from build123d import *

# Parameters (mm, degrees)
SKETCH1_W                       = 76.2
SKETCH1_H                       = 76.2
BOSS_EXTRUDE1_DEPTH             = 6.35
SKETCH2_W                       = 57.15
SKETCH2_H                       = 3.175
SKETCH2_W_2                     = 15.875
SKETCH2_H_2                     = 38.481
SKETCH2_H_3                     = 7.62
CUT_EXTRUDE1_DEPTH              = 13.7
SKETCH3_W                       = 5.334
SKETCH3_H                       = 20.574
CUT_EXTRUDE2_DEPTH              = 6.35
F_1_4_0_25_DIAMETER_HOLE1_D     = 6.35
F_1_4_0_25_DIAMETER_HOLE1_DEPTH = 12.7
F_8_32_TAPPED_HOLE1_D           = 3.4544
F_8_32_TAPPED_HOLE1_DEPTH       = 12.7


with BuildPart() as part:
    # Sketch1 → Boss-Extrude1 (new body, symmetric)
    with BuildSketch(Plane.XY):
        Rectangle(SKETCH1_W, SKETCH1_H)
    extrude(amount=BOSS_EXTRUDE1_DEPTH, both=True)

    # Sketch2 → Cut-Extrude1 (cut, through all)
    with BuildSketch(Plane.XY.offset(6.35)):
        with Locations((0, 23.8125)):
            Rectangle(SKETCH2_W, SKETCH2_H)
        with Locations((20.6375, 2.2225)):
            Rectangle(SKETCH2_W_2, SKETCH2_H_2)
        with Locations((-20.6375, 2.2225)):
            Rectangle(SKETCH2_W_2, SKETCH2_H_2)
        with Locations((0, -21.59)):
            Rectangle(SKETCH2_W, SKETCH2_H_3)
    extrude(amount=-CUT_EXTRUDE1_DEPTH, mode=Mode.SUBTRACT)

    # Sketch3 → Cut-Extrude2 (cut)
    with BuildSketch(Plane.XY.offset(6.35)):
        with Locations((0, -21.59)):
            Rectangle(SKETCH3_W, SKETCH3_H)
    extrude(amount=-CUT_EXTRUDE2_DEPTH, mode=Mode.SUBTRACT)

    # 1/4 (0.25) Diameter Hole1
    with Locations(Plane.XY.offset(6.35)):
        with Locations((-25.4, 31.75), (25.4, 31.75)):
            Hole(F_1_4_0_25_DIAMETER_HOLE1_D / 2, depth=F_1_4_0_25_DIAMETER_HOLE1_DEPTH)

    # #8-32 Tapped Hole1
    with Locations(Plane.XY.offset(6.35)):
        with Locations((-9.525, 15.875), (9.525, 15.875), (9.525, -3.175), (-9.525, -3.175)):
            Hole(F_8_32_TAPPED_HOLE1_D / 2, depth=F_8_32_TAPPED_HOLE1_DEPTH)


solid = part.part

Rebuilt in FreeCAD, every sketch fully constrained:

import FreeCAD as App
import Part
import Sketcher

V = App.Vector
Q = App.Units.Quantity

doc = App.newDocument("Part")
body = doc.addObject("PartDesign::Body", "Body")

# Sketch on XY plane
sketch1 = doc.addObject("Sketcher::SketchObject", "Sketch")
body.addObject(sketch1)
sketch1.AttachmentSupport = (doc.XY_Plane, [""])
sketch1.MapMode = "FlatFace"
sketch1.addGeometry(Part.LineSegment(V(-38.1, 38.1, 0), V(-38.1, -38.1, 0)), False)
sketch1.addGeometry(Part.LineSegment(V(-38.1, -38.1, 0), V(38.1, -38.1, 0)), False)
sketch1.addGeometry(Part.LineSegment(V(38.1, -38.1, 0), V(38.1, 38.1, 0)), False)
sketch1.addGeometry(Part.LineSegment(V(38.1, 38.1, 0), V(-38.1, 38.1, 0)), False)
sketch1.addConstraint(Sketcher.Constraint("Coincident", 0, 2, 1, 1))
sketch1.addConstraint(Sketcher.Constraint("Coincident", 1, 2, 2, 1))
sketch1.addConstraint(Sketcher.Constraint("Coincident", 2, 2, 3, 1))
sketch1.addConstraint(Sketcher.Constraint("Coincident", 3, 2, 0, 1))
sketch1.addConstraint(Sketcher.Constraint("Vertical", 0))
sketch1.addConstraint(Sketcher.Constraint("Horizontal", 1))
sketch1.addConstraint(Sketcher.Constraint("Vertical", 2))
sketch1.addConstraint(Sketcher.Constraint("Horizontal", 3))
sketch1.addConstraint(Sketcher.Constraint("Symmetric", 0, 2, 2, 2, -1, 1))
sketch1.addConstraint(Sketcher.Constraint("Equal", 3, 0))
sketch1.addConstraint(Sketcher.Constraint("DistanceX", 1, 1, 1, 2, Q("3 in")))
pad1 = doc.addObject("PartDesign::Pad", "Pad")
body.addObject(pad1)
pad1.Profile = sketch1
pad1.Length = Q("0.5 in")
pad1.Midplane = True

# Sketch on XY plane
sketch2 = doc.addObject("Sketcher::SketchObject", "Sketch001")
body.addObject(sketch2)
sketch2.AttachmentSupport = (doc.XY_Plane, [""])
sketch2.MapMode = "FlatFace"
sketch2.AttachmentOffset = App.Placement(V(0, 0, 0.25 * 25.4), App.Rotation())
sketch2.addGeometry(Part.LineSegment(V(-28.575, 25.4, 0), V(-28.575, 22.225, 0)), False)
sketch2.addGeometry(Part.LineSegment(V(-28.575, 22.225, 0), V(28.575, 22.225, 0)), False)
sketch2.addGeometry(Part.LineSegment(V(28.575, 22.225, 0), V(28.575, 25.4, 0)), False)
sketch2.addGeometry(Part.LineSegment(V(28.575, 25.4, 0), V(-28.575, 25.4, 0)), False)
sketch2.addGeometry(Part.LineSegment(V(12.7, 21.463, 0), V(12.7, -17.018, 0)), False)
sketch2.addGeometry(Part.LineSegment(V(12.7, -17.018, 0), V(28.575, -17.018, 0)), False)
sketch2.addGeometry(Part.LineSegment(V(28.575, -17.018, 0), V(28.575, 21.463, 0)), False)
sketch2.addGeometry(Part.LineSegment(V(28.575, 21.463, 0), V(12.7, 21.463, 0)), False)
sketch2.addGeometry(Part.LineSegment(V(-28.575, 21.463, 0), V(-28.575, -17.018, 0)), False)
sketch2.addGeometry(Part.LineSegment(V(-28.575, -17.018, 0), V(-12.7, -17.018, 0)), False)
sketch2.addGeometry(Part.LineSegment(V(-12.7, -17.018, 0), V(-12.7, 21.463, 0)), False)
sketch2.addGeometry(Part.LineSegment(V(-12.7, 21.463, 0), V(-28.575, 21.463, 0)), False)
sketch2.addGeometry(Part.LineSegment(V(-28.575, -17.78, 0), V(-28.575, -25.4, 0)), False)
sketch2.addGeometry(Part.LineSegment(V(-28.575, -25.4, 0), V(28.575, -25.4, 0)), False)
sketch2.addGeometry(Part.LineSegment(V(28.575, -25.4, 0), V(28.575, -17.78, 0)), False)
sketch2.addGeometry(Part.LineSegment(V(28.575, -17.78, 0), V(-28.575, -17.78, 0)), False)
sketch2.addConstraint(Sketcher.Constraint("Coincident", 0, 2, 1, 1))
sketch2.addConstraint(Sketcher.Constraint("Coincident", 1, 2, 2, 1))
sketch2.addConstraint(Sketcher.Constraint("Coincident", 2, 2, 3, 1))
sketch2.addConstraint(Sketcher.Constraint("Coincident", 3, 2, 0, 1))
sketch2.addConstraint(Sketcher.Constraint("Coincident", 4, 2, 5, 1))
sketch2.addConstraint(Sketcher.Constraint("Coincident", 5, 2, 6, 1))
sketch2.addConstraint(Sketcher.Constraint("Coincident", 6, 2, 7, 1))
sketch2.addConstraint(Sketcher.Constraint("Coincident", 7, 2, 4, 1))
sketch2.addConstraint(Sketcher.Constraint("Coincident", 8, 2, 9, 1))
sketch2.addConstraint(Sketcher.Constraint("Coincident", 9, 2, 10, 1))
sketch2.addConstraint(Sketcher.Constraint("Coincident", 10, 2, 11, 1))
sketch2.addConstraint(Sketcher.Constraint("Coincident", 11, 2, 8, 1))
sketch2.addConstraint(Sketcher.Constraint("Coincident", 12, 2, 13, 1))
sketch2.addConstraint(Sketcher.Constraint("Coincident", 13, 2, 14, 1))
sketch2.addConstraint(Sketcher.Constraint("Coincident", 14, 2, 15, 1))
sketch2.addConstraint(Sketcher.Constraint("Coincident", 15, 2, 12, 1))
sketch2.addConstraint(Sketcher.Constraint("Vertical", 0))
sketch2.addConstraint(Sketcher.Constraint("Horizontal", 1))
sketch2.addConstraint(Sketcher.Constraint("Vertical", 2))
sketch2.addConstraint(Sketcher.Constraint("Horizontal", 3))
sketch2.addConstraint(Sketcher.Constraint("Vertical", 4))
sketch2.addConstraint(Sketcher.Constraint("Horizontal", 5))
sketch2.addConstraint(Sketcher.Constraint("Vertical", 6))
sketch2.addConstraint(Sketcher.Constraint("Horizontal", 7))
sketch2.addConstraint(Sketcher.Constraint("Vertical", 8))
sketch2.addConstraint(Sketcher.Constraint("Horizontal", 9))
sketch2.addConstraint(Sketcher.Constraint("Vertical", 10))
sketch2.addConstraint(Sketcher.Constraint("Horizontal", 11))
sketch2.addConstraint(Sketcher.Constraint("Vertical", 12))
sketch2.addConstraint(Sketcher.Constraint("Horizontal", 13))
sketch2.addConstraint(Sketcher.Constraint("Vertical", 14))
sketch2.addConstraint(Sketcher.Constraint("Horizontal", 15))
sketch2.addConstraint(Sketcher.Constraint("Symmetric", 2, 2, 12, 2, -1, 1))
sketch2.addConstraint(Sketcher.Constraint("Symmetric", 5, 2, 8, 2, -2))
sketch2.addConstraint(Sketcher.Constraint("Symmetric", 7, 2, 10, 2, -2))
sketch2.addConstraint(Sketcher.Constraint("Vertical", 2, 2, 5, 2))
sketch2.addConstraint(Sketcher.Constraint("Vertical", 3, 2, 8, 2))
sketch2.addConstraint(Sketcher.Constraint("Vertical", 6, 2, 13, 2))
sketch2.addConstraint(Sketcher.Constraint("DistanceY", 12, 2, 12, 1, Q("0.3 in")))
sketch2.addConstraint(Sketcher.Constraint("DistanceY", -1, 1, 2, 2, Q("1 in")))
sketch2.addConstraint(Sketcher.Constraint("DistanceX", 9, 2, 4, 2, Q("1 in")))
sketch2.addConstraint(Sketcher.Constraint("DistanceX", 1, 1, 1, 2, Q("2.25 in")))
sketch2.addConstraint(Sketcher.Constraint("DistanceY", 0, 2, 0, 1, Q("0.125 in")))
sketch2.addConstraint(Sketcher.Constraint("DistanceY", 4, 2, 4, 1, Q("1.515 in")))
sketch2.addConstraint(Sketcher.Constraint("DistanceY", 4, 2, -1, 1, Q("0.67 in")))
pocket1 = doc.addObject("PartDesign::Pocket", "Pocket")
body.addObject(pocket1)
pocket1.Profile = sketch2
pocket1.Type = "ThroughAll"

# Sketch on XY plane
sketch3 = doc.addObject("Sketcher::SketchObject", "Sketch002")
body.addObject(sketch3)
sketch3.AttachmentSupport = (doc.XY_Plane, [""])
sketch3.MapMode = "FlatFace"
sketch3.AttachmentOffset = App.Placement(V(0, 0, 0.25 * 25.4), App.Rotation())
sketch3.addGeometry(Part.LineSegment(V(-2.667, -11.303, 0), V(-2.667, -31.877, 0)), False)
sketch3.addGeometry(Part.LineSegment(V(-2.667, -31.877, 0), V(2.667, -31.877, 0)), False)
sketch3.addGeometry(Part.LineSegment(V(2.667, -31.877, 0), V(2.667, -11.303, 0)), False)
sketch3.addGeometry(Part.LineSegment(V(2.667, -11.303, 0), V(-2.667, -11.303, 0)), False)
sketch3.addConstraint(Sketcher.Constraint("Coincident", 0, 2, 1, 1))
sketch3.addConstraint(Sketcher.Constraint("Coincident", 1, 2, 2, 1))
sketch3.addConstraint(Sketcher.Constraint("Coincident", 2, 2, 3, 1))
sketch3.addConstraint(Sketcher.Constraint("Coincident", 3, 2, 0, 1))
sketch3.addConstraint(Sketcher.Constraint("Vertical", 0))
sketch3.addConstraint(Sketcher.Constraint("Horizontal", 1))
sketch3.addConstraint(Sketcher.Constraint("Vertical", 2))
sketch3.addConstraint(Sketcher.Constraint("Horizontal", 3))
sketch3.addConstraint(Sketcher.Constraint("DistanceX", 1, 1, 1, 2, Q("0.21 in")))
sketch3.addConstraint(Sketcher.Constraint("DistanceY", 0, 2, 0, 1, Q("0.81 in")))
sketch3.addConstraint(Sketcher.Constraint("DistanceX", 0, 2, -1, 1, Q("0.105 in")))
sketch3.addConstraint(Sketcher.Constraint("DistanceY", 0, 2, -1, 1, Q("1.255 in")))
pocket2 = doc.addObject("PartDesign::Pocket", "Pocket001")
body.addObject(pocket2)
pocket2.Profile = sketch3
pocket2.Length = Q("0.25 in")

# Sketch on XY plane
sketch4 = doc.addObject("Sketcher::SketchObject", "Sketch003")
body.addObject(sketch4)
sketch4.AttachmentSupport = (doc.XY_Plane, [""])
sketch4.MapMode = "FlatFace"
sketch4.AttachmentOffset = App.Placement(V(0, 0, 0.25 * 25.4), App.Rotation())
sketch4.addGeometry(Part.Circle(V(-25.4, 31.75, 0), V(0, 0, 1), 3.175), False)
sketch4.addGeometry(Part.Circle(V(25.4, 31.75, 0), V(0, 0, 1), 3.175), False)
sketch4.addConstraint(Sketcher.Constraint("Equal", 0, 1))
sketch4.addConstraint(Sketcher.Constraint("Symmetric", 0, 3, 1, 3, -2))
sketch4.addConstraint(Sketcher.Constraint("Diameter", 0, Q("0.25 in")))
sketch4.addConstraint(Sketcher.Constraint("DistanceX", 0, 3, -1, 1, Q("1 in")))
sketch4.addConstraint(Sketcher.Constraint("DistanceY", -1, 1, 0, 3, Q("1.25 in")))
doc.recompute()
hole = doc.addObject("PartDesign::Hole", "Hole")
body.addObject(hole)
hole.Profile = sketch4
hole.ThreadType = "None"
hole.Diameter = Q("0.25 in")
hole.DepthType = "Dimension"
hole.Depth = Q("0.5 in")
hole.DrillPoint = "Flat"

# Sketch on XY plane
sketch5 = doc.addObject("Sketcher::SketchObject", "Sketch004")
body.addObject(sketch5)
sketch5.AttachmentSupport = (doc.XY_Plane, [""])
sketch5.MapMode = "FlatFace"
sketch5.AttachmentOffset = App.Placement(V(0, 0, 0.25 * 25.4), App.Rotation())
sketch5.addGeometry(Part.Circle(V(-9.525, 15.875, 0), V(0, 0, 1), 1.7272), False)
sketch5.addGeometry(Part.Circle(V(9.525, 15.875, 0), V(0, 0, 1), 1.7272), False)
sketch5.addGeometry(Part.Circle(V(9.525, -3.175, 0), V(0, 0, 1), 1.7272), False)
sketch5.addGeometry(Part.Circle(V(-9.525, -3.175, 0), V(0, 0, 1), 1.7272), False)
sketch5.addConstraint(Sketcher.Constraint("Equal", 0, 1))
sketch5.addConstraint(Sketcher.Constraint("Equal", 1, 2))
sketch5.addConstraint(Sketcher.Constraint("Equal", 2, 3))
sketch5.addConstraint(Sketcher.Constraint("Symmetric", 0, 3, 1, 3, -2))
sketch5.addConstraint(Sketcher.Constraint("Symmetric", 2, 3, 3, 3, -2))
sketch5.addConstraint(Sketcher.Constraint("Vertical", 1, 3, 2, 3))
sketch5.addConstraint(Sketcher.Constraint("Diameter", 0, Q("0.136 in")))
sketch5.addConstraint(Sketcher.Constraint("DistanceX", 0, 3, 1, 3, Q("0.75 in")))
sketch5.addConstraint(Sketcher.Constraint("DistanceY", 2, 3, 1, 3, Q("0.75 in")))
sketch5.addConstraint(Sketcher.Constraint("DistanceY", -1, 1, 0, 3, Q("0.625 in")))
doc.recompute()
hole2 = doc.addObject("PartDesign::Hole", "Hole001")
body.addObject(hole2)
hole2.Profile = sketch5
hole2.ThreadType = "None"
hole2.Diameter = Q("0.136 in")
hole2.DepthType = "Dimension"
hole2.Depth = Q("0.5 in")
hole2.DrillPoint = "Flat"

doc.recompute()
